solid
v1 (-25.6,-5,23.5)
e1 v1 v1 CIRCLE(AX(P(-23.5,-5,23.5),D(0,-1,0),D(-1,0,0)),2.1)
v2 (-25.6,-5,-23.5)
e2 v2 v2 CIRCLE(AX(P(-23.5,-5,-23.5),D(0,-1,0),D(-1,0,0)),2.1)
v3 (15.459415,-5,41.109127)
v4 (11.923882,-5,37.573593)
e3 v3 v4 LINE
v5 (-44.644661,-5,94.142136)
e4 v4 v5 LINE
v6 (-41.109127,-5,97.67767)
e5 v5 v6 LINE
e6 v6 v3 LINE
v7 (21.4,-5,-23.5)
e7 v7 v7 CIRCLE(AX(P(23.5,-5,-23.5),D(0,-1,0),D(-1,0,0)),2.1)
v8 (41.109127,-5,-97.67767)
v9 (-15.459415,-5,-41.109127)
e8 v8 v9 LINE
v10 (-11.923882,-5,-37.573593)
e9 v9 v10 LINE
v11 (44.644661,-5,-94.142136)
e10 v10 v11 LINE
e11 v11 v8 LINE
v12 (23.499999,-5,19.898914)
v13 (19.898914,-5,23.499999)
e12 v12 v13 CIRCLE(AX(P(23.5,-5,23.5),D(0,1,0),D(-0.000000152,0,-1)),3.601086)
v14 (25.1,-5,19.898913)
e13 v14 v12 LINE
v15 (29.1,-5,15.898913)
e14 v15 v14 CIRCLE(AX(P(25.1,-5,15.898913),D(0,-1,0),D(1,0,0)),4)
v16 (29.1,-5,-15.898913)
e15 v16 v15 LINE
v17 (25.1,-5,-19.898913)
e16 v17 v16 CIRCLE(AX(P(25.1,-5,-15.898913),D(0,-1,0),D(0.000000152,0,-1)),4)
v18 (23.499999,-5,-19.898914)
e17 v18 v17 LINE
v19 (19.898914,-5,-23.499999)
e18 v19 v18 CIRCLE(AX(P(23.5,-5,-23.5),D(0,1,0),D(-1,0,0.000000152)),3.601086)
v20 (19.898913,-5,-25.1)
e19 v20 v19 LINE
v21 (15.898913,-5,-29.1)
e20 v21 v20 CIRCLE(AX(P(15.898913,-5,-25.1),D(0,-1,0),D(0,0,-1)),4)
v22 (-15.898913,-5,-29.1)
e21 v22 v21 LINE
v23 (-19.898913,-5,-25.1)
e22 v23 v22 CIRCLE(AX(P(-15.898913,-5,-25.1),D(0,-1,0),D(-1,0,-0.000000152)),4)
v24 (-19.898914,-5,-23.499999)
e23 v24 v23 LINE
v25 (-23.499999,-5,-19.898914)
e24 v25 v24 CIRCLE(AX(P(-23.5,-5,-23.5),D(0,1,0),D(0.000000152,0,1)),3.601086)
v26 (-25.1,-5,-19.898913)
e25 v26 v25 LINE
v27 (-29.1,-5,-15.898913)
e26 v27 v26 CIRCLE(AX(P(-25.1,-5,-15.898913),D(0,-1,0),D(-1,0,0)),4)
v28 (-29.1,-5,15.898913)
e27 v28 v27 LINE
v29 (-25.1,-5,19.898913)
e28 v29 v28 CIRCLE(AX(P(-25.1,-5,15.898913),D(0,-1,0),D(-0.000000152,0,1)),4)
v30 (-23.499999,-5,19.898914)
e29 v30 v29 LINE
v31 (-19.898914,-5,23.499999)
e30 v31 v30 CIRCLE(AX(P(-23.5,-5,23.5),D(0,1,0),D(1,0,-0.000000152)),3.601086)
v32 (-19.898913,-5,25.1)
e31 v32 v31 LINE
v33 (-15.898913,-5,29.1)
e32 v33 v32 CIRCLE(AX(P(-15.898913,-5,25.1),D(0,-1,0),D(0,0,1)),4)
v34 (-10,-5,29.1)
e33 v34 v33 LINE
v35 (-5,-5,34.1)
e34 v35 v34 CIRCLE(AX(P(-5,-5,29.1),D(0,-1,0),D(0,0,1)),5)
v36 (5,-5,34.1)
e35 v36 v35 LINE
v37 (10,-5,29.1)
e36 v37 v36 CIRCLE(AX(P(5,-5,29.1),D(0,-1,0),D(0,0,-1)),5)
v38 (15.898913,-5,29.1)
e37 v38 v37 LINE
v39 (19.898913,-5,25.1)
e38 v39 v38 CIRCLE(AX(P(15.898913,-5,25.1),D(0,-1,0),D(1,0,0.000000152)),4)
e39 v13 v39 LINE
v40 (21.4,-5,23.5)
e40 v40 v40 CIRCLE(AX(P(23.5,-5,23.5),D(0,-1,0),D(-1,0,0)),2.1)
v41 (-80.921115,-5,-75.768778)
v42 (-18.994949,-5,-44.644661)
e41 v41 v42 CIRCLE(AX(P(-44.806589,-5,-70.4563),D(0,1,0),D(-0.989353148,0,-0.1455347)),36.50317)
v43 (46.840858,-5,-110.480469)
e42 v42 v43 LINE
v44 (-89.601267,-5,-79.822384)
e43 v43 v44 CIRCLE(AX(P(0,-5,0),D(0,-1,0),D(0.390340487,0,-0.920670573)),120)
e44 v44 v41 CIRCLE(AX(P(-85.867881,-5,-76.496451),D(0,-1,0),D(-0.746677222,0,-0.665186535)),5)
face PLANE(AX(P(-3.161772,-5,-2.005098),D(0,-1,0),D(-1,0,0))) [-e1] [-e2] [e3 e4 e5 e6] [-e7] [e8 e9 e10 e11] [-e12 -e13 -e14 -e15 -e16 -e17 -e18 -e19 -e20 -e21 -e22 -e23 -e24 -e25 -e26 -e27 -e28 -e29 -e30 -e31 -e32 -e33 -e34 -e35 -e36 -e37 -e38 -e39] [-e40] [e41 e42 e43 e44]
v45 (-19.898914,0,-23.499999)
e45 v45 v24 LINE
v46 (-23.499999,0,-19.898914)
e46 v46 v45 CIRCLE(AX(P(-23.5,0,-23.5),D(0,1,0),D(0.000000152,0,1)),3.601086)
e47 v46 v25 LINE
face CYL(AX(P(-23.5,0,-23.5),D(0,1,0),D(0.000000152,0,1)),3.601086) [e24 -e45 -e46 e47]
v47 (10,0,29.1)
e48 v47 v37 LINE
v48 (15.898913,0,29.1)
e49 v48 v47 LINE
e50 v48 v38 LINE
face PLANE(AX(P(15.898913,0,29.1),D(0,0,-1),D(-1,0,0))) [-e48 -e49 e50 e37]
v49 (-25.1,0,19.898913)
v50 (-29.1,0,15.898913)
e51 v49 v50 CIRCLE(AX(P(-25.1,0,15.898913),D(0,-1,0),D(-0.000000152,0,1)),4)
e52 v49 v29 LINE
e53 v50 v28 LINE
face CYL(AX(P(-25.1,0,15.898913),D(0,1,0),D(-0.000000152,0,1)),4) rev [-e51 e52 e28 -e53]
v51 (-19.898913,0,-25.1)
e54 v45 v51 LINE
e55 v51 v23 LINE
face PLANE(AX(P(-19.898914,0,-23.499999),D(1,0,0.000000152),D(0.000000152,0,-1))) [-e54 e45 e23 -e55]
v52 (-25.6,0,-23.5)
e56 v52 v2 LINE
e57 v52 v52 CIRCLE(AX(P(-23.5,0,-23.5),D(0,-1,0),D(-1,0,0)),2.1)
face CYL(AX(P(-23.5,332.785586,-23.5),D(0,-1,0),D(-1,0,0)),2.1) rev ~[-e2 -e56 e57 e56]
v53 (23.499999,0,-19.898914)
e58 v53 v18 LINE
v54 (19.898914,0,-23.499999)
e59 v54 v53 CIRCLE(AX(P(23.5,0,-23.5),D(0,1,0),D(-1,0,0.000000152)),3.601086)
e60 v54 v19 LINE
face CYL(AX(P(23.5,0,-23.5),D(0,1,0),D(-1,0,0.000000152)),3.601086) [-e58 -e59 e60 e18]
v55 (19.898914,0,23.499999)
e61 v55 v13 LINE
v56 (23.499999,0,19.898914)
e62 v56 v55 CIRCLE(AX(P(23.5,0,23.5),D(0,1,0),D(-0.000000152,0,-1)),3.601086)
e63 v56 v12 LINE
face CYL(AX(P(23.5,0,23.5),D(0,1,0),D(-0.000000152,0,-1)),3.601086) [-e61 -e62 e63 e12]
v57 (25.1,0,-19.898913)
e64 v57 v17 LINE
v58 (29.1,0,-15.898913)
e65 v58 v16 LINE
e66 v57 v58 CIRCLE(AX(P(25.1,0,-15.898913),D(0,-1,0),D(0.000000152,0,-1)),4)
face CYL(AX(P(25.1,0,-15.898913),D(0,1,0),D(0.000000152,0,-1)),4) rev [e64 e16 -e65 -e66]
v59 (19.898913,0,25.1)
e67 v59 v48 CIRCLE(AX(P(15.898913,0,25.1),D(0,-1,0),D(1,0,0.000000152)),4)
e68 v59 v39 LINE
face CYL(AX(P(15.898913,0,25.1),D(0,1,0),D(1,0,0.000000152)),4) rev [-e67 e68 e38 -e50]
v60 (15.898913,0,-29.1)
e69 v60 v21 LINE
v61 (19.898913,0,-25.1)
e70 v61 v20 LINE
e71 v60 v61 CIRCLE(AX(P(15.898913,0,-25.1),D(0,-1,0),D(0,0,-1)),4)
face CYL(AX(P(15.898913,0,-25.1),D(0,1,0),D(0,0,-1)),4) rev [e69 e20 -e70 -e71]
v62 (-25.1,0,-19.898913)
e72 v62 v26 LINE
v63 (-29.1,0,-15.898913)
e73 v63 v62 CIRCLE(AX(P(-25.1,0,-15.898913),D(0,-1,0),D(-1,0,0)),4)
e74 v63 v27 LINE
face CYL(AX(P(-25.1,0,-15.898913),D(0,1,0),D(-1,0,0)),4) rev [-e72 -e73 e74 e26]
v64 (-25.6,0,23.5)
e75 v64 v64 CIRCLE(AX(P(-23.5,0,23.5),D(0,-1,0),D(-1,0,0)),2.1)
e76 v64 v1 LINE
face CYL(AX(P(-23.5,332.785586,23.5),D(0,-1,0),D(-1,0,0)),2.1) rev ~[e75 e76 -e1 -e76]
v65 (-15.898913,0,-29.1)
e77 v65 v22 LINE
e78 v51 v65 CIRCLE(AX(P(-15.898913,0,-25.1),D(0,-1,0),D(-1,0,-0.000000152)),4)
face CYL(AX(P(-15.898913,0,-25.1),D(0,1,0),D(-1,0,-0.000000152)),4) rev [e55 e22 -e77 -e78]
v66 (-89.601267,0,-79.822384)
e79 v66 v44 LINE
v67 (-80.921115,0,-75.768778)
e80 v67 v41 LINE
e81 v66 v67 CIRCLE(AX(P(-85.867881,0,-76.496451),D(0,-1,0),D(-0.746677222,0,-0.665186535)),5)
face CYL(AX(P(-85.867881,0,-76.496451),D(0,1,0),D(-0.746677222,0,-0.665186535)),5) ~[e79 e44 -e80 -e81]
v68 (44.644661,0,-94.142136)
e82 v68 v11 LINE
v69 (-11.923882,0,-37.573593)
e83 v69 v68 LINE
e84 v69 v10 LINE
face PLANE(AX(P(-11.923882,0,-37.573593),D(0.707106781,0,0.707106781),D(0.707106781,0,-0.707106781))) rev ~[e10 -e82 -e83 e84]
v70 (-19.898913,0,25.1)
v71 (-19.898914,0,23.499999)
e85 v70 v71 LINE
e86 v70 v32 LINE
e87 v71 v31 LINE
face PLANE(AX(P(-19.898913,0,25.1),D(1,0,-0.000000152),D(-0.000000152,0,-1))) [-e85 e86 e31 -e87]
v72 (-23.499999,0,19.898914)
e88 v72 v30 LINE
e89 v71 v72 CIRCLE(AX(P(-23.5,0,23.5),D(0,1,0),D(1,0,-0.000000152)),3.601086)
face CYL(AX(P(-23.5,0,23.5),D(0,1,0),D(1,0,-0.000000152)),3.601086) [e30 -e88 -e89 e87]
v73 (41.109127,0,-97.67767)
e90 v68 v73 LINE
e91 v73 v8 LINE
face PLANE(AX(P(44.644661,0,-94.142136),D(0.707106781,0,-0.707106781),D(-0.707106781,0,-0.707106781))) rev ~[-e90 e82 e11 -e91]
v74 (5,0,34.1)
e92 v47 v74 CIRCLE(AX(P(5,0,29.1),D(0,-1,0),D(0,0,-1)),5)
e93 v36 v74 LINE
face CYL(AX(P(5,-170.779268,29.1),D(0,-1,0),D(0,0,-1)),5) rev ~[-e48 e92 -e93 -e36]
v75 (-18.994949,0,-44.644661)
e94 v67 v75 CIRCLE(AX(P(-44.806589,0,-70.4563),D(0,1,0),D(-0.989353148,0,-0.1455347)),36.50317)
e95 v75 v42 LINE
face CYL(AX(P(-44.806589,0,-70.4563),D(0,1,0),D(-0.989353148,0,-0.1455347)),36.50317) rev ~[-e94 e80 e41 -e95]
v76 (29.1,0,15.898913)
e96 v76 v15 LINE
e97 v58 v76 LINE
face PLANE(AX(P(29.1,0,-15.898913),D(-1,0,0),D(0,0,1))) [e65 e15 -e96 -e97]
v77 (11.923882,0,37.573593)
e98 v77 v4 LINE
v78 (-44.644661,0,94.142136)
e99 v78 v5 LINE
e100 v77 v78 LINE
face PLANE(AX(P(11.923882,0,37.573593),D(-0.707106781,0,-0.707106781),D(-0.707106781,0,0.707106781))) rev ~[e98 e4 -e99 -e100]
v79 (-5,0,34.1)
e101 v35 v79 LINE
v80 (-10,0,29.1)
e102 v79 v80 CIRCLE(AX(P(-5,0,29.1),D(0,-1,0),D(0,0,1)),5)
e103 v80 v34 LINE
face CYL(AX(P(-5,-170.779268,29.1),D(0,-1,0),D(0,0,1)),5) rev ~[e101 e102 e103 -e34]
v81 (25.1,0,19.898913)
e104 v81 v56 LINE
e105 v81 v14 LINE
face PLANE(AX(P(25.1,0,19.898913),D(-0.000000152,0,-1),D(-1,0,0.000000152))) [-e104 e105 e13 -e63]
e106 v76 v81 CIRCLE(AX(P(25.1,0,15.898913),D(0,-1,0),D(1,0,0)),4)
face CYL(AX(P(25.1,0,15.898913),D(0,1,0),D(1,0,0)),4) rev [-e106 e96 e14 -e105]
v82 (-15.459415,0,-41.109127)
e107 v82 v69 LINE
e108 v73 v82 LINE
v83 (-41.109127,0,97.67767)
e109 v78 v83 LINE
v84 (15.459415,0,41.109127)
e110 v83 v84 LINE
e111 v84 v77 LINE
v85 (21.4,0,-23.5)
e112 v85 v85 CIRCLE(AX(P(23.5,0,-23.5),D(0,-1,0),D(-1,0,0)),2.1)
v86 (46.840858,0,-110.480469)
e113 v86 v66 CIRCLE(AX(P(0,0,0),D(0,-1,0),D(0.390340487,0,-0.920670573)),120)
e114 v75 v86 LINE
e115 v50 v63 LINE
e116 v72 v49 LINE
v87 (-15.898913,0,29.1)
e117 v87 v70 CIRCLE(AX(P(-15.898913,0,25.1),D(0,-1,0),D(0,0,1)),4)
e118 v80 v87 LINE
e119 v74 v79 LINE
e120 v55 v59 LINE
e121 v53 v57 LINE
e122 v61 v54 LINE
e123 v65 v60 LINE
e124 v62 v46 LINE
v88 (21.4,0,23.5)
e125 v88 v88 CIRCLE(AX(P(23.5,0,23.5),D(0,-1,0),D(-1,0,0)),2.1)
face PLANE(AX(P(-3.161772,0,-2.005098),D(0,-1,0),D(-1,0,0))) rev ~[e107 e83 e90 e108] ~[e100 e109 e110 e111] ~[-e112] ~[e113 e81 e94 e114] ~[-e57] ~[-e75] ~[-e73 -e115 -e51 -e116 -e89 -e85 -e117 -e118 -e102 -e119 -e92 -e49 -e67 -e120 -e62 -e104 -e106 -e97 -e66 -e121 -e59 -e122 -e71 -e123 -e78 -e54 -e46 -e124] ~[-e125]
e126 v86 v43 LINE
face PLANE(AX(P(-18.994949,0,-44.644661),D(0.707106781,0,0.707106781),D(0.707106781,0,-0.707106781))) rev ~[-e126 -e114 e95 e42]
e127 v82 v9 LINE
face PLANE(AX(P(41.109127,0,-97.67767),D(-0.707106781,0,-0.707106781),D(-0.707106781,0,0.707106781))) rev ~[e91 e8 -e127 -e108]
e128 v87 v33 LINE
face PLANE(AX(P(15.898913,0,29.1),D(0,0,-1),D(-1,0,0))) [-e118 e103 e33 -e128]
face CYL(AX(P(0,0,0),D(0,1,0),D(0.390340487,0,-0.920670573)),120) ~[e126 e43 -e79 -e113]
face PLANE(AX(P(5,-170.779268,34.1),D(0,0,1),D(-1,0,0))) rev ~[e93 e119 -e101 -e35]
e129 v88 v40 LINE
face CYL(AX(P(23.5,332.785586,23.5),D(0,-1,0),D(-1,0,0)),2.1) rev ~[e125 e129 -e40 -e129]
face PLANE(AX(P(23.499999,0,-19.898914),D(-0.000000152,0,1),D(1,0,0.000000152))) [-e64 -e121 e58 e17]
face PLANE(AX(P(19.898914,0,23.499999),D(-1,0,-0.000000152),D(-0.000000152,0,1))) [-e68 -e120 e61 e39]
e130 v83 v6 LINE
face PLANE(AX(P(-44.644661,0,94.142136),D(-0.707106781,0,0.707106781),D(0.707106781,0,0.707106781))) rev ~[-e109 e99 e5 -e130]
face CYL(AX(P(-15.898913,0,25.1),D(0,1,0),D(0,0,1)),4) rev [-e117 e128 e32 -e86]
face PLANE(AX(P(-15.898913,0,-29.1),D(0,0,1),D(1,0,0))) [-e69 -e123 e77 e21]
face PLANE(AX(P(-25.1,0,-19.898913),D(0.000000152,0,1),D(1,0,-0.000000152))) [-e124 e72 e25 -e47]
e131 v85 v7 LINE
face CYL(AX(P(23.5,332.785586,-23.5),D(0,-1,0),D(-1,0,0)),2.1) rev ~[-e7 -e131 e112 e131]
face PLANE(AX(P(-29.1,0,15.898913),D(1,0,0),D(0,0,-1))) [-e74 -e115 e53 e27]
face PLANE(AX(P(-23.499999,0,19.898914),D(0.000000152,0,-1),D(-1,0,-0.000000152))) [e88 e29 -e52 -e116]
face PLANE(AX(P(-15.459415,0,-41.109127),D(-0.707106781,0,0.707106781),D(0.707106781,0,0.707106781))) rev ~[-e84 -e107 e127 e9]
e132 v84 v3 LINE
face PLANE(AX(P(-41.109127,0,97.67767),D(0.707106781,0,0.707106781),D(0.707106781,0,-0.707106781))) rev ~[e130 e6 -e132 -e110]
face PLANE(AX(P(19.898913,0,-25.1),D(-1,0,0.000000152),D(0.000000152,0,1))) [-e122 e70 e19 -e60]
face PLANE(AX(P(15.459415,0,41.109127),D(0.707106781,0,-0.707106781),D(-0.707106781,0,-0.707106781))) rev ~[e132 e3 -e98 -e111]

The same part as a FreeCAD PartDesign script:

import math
import FreeCAD as App
import Part
import Sketcher
from FreeCAD import Vector
Q = App.Units.Quantity


def add_polygon(sketch, points):
    """Adds a closed chain of lines whose ends are joined by coincident constraints."""
    first, n = sketch.GeometryCount, len(points)
    for a, b in zip(points, points[1:] + points[:1]):
        sketch.addGeometry(Part.LineSegment(App.Vector(*a, 0), App.Vector(*b, 0)), False)
    for i in range(n):
        sketch.addConstraint(Sketcher.Constraint("Coincident", first + i, 2, first + (i + 1) % n, 1))

doc = App.newDocument("Part")
body = doc.addObject("PartDesign::Body", "Body")

sketch1 = body.newObject("Sketcher::SketchObject", "Sketch")
sketch1.AttachmentSupport = (doc.getObject("XZ_Plane"), [""])
sketch1.MapMode = "FlatFace"
sketch1.addGeometry(Part.LineSegment(Vector(46.8, -110.5, 0), Vector(-19, -44.6, 0)), False)
sketch1.addGeometry(Part.ArcOfCircle(Part.Circle(Vector(-44.8, -70.5, 0), Vector(0, 0, 1), 36.5), math.radians(45), math.radians(188)), False)
sketch1.addGeometry(Part.ArcOfCircle(Part.Circle(Vector(-85.9, -76.5, 0), Vector(0, 0, 1), 5), math.radians(-138), math.radians(8)), False)
sketch1.addGeometry(Part.ArcOfCircle(Part.Circle(Vector(0, 0, 0), Vector(0, 0, 1), 120), math.radians(-67), math.radians(222)), False)
add_polygon(sketch1, [(-44.6, 94.1), (11.9, 37.6), (15.5, 41.1), (-41.1, 97.7)])
sketch1.addGeometry(Part.LineSegment(Vector(-19.9, -23.5, 0), Vector(-19.9, -25.1, 0)), False)
sketch1.addGeometry(Part.ArcOfCircle(Part.Circle(Vector(-15.9, -25.1, 0), Vector(0, 0, 1), 4), math.radians(-180), math.radians(-90)), False)
sketch1.addGeometry(Part.LineSegment(Vector(-15.9, -29.1, 0), Vector(15.9, -29.1, 0)), False)
sketch1.addGeometry(Part.ArcOfCircle(Part.Circle(Vector(15.9, -25.1, 0), Vector(0, 0, 1), 4), math.radians(-90), math.radians(0)), False)
sketch1.addGeometry(Part.LineSegment(Vector(19.9, -25.1, 0), Vector(19.9, -23.5, 0)), False)
sketch1.addGeometry(Part.ArcOfCircle(Part.Circle(Vector(23.5, -23.5, 0), Vector(0, 0, 1), 3.6), math.radians(90), math.radians(180)), False)
sketch1.addGeometry(Part.LineSegment(Vector(23.5, -19.9, 0), Vector(25.1, -19.9, 0)), False)
sketch1.addGeometry(Part.ArcOfCircle(Part.Circle(Vector(25.1, -15.9, 0), Vector(0, 0, 1), 4), math.radians(-90), math.radians(0)), False)
sketch1.addGeometry(Part.LineSegment(Vector(29.1, -15.9, 0), Vector(29.1, 15.9, 0)), False)
sketch1.addGeometry(Part.ArcOfCircle(Part.Circle(Vector(25.1, 15.9, 0), Vector(0, 0, 1), 4), math.radians(0), math.radians(90)), False)
sketch1.addGeometry(Part.LineSegment(Vector(25.1, 19.9, 0), Vector(23.5, 19.9, 0)), False)
sketch1.addGeometry(Part.ArcOfCircle(Part.Circle(Vector(23.5, 23.5, 0), Vector(0, 0, 1), 3.6), math.radians(-180), math.radians(-90)), False)
sketch1.addGeometry(Part.LineSegment(Vector(19.9, 23.5, 0), Vector(19.9, 25.1, 0)), False)
sketch1.addGeometry(Part.ArcOfCircle(Part.Circle(Vector(15.9, 25.1, 0), Vector(0, 0, 1), 4), math.radians(0), math.radians(90)), False)
sketch1.addGeometry(Part.LineSegment(Vector(15.9, 29.1, 0), Vector(-15.9, 29.1, 0)), False)
sketch1.addGeometry(Part.ArcOfCircle(Part.Circle(Vector(-15.9, 25.1, 0), Vector(0, 0, 1), 4), math.radians(90), math.radians(180)), False)
sketch1.addGeometry(Part.LineSegment(Vector(-19.9, 25.1, 0), Vector(-19.9, 23.5, 0)), False)
sketch1.addGeometry(Part.ArcOfCircle(Part.Circle(Vector(-23.5, 23.5, 0), Vector(0, 0, 1), 3.6), math.radians(-90), math.radians(0)), False)
sketch1.addGeometry(Part.LineSegment(Vector(-23.5, 19.9, 0), Vector(-25.1, 19.9, 0)), False)
sketch1.addGeometry(Part.ArcOfCircle(Part.Circle(Vector(-25.1, 15.9, 0), Vector(0, 0, 1), 4), math.radians(90), math.radians(180)), False)
sketch1.addGeometry(Part.LineSegment(Vector(-29.1, 15.9, 0), Vector(-29.1, -15.9, 0)), False)
sketch1.addGeometry(Part.ArcOfCircle(Part.Circle(Vector(-25.1, -15.9, 0), Vector(0, 0, 1), 4), math.radians(180), math.radians(270)), False)
sketch1.addGeometry(Part.LineSegment(Vector(-25.1, -19.9, 0), Vector(-23.5, -19.9, 0)), False)
sketch1.addGeometry(Part.ArcOfCircle(Part.Circle(Vector(-23.5, -23.5, 0), Vector(0, 0, 1), 3.6), math.radians(0), math.radians(90)), False)
add_polygon(sketch1, [(-11.9, -37.6), (-15.5, -41.1), (41.1, -97.7), (44.6, -94.1)])
sketch1.addConstraint([
    Sketcher.Constraint("Tangent", 0, 2, 1, 1),
    Sketcher.Constraint("Tangent", 1, 2, 2, 2),
    Sketcher.Constraint("Tangent", 2, 1, 3, 2),
    Sketcher.Constraint("Coincident", 3, 1, 0, 1),
    Sketcher.Constraint("Tangent", 8, 2, 9, 1),
    Sketcher.Constraint("Tangent", 9, 2, 10, 1),
    Sketcher.Constraint("Tangent", 10, 2, 11, 1),
    Sketcher.Constraint("Tangent", 11, 2, 12, 1),
    Sketcher.Constraint("Tangent", 12, 2, 13, 2),
    Sketcher.Constraint("Tangent", 13, 1, 14, 1),
    Sketcher.Constraint("Tangent", 14, 2, 15, 1),
    Sketcher.Constraint("Tangent", 15, 2, 16, 1),
    Sketcher.Constraint("Tangent", 16, 2, 17, 1),
    Sketcher.Constraint("Tangent", 17, 2, 18, 1),
    Sketcher.Constraint("Tangent", 18, 2, 19, 2),
    Sketcher.Constraint("Tangent", 19, 1, 20, 1),
    Sketcher.Constraint("Tangent", 20, 2, 21, 1),
    Sketcher.Constraint("Tangent", 21, 2, 22, 1),
    Sketcher.Constraint("Tangent", 22, 2, 23, 1),
    Sketcher.Constraint("Tangent", 23, 2, 24, 1),
    Sketcher.Constraint("Tangent", 24, 2, 25, 2),
    Sketcher.Constraint("Tangent", 25, 1, 26, 1),
    Sketcher.Constraint("Tangent", 26, 2, 27, 1),
    Sketcher.Constraint("Tangent", 27, 2, 28, 1),
    Sketcher.Constraint("Tangent", 28, 2, 29, 1),
    Sketcher.Constraint("Tangent", 29, 2, 30, 1),
    Sketcher.Constraint("Tangent", 30, 2, 31, 2),
    Sketcher.Constraint("Tangent", 31, 1, 8, 1),
    Sketcher.Constraint("Vertical", 8),
    Sketcher.Constraint("Horizontal", 10),
    Sketcher.Constraint("Vertical", 12),
    Sketcher.Constraint("Horizontal", 14),
    Sketcher.Constraint("Vertical", 16),
    Sketcher.Constraint("Horizontal", 18),
    Sketcher.Constraint("Vertical", 20),
    Sketcher.Constraint("Horizontal", 22),
    Sketcher.Constraint("Vertical", 24),
    Sketcher.Constraint("Horizontal", 26),
    Sketcher.Constraint("Vertical", 28),
    Sketcher.Constraint("Horizontal", 30),
    Sketcher.Constraint("Coincident", 3, 3, -1, 1),
    Sketcher.Constraint("Equal", 9, 11),
    Sketcher.Constraint("Equal", 11, 15),
    Sketcher.Constraint("Equal", 15, 17),
    Sketcher.Constraint("Equal", 13, 19),
    Sketcher.Constraint("Equal", 17, 21),
    Sketcher.Constraint("Equal", 21, 23),
    Sketcher.Constraint("Equal", 19, 25),
    Sketcher.Constraint("Equal", 23, 27),
    Sketcher.Constraint("Equal", 27, 29),
    Sketcher.Constraint("Equal", 25, 31),
    Sketcher.Constraint("Symmetric", 9, 3, 21, 3, -1, 1),
    Sketcher.Constraint("Symmetric", 13, 3, 25, 3, -1, 1),
    Sketcher.Constraint("Symmetric", 17, 3, 29, 3, -1, 1),
    Sketcher.Constraint("Symmetric", 5, 2, 32, 2, -1, 1),
    Sketcher.Constraint("Symmetric", 6, 2, 33, 2, -1, 1),
    Sketcher.Constraint("Symmetric", 7, 2, 34, 2, -1, 1),
    Sketcher.Constraint("Symmetric", 4, 2, 35, 2, -1, 1),
    Sketcher.Constraint("Symmetric", 19, 3, 25, 3, -2),
    Sketcher.Constraint("Parallel", 0, 4),
    Sketcher.Constraint("Perpendicular", 4, 5),
    Sketcher.Constraint("Perpendicular", 5, 6),
    Sketcher.Constraint("Perpendicular", 6, 7),
    Sketcher.Constraint("Equal", 30, 8),
    Sketcher.Constraint("Equal", 22, 16),
    Sketcher.Constraint("Radius", 2, 5.0),
    Sketcher.Constraint("Radius", 3, 120.0),
    Sketcher.Constraint("Radius", 9, 4.0),
    Sketcher.Constraint("Angle", 0, Q("135 deg")),
    Sketcher.Constraint("Distance", 4, 80.0),
    Sketcher.Constraint("Distance", 5, 5.0),
    Sketcher.Constraint("DistanceX", 14, 1, 14, 2, 1.600001),
    Sketcher.Constraint("DistanceY", 13, 3, 19, 3, 47.0),
    Sketcher.Constraint("Radius", 1, 36.50317),
    Sketcher.Constraint("Radius", 13, 3.601086),
    Sketcher.Constraint("DistanceY", 1, 3, -1, 1, 70.4563),
    Sketcher.Constraint("DistanceX", 1, 3, 11, 3, 60.705502),
    Sketcher.Constraint("DistanceX", 31, 1, 32, 2, 4.439498),
    Sketcher.Constraint("DistanceY", 3, 1, 33, 2, 12.802799),
])
pad1 = body.newObject("PartDesign::Pad", "Pad")
pad1.Profile = sketch1
pad1.Length = 5

sketch2 = body.newObject("Sketcher::SketchObject", "Sketch001")
sketch2.AttachmentSupport = (doc.getObject("XZ_Plane"), [""])
sketch2.MapMode = "FlatFace"
sketch2.addGeometry([
    Part.LineSegment(Vector(5, 24, 0), Vector(-5, 24, 0)),
    Part.ArcOfCircle(Part.Circle(Vector(-5, 29, 0), Vector(0, 0, 1), 5), math.radians(90), math.radians(270)),
    Part.LineSegment(Vector(-5, 34, 0), Vector(5, 34, 0)),
    Part.ArcOfCircle(Part.Circle(Vector(5, 29, 0), Vector(0, 0, 1), 5), math.radians(-90), math.radians(90)),
], False)
sketch2.addConstraint([
    Sketcher.Constraint("Tangent", 0, 2, 1, 2),
    Sketcher.Constraint("Tangent", 1, 1, 2, 1),
    Sketcher.Constraint("Tangent", 2, 2, 3, 2),
    Sketcher.Constraint("Tangent", 3, 1, 0, 1),
    Sketcher.Constraint("Horizontal", 0),
    Sketcher.Constraint("Horizontal", 2),
    Sketcher.Constraint("Radius", 1, 5.0),
    Sketcher.Constraint("DistanceX", 0, 2, 0, 1, 10.0),
    Sketcher.Constraint("DistanceX", 1, 3, -1, 1, 5.0),
    Sketcher.Constraint("DistanceY", -1, 1, 1, 3, 29.1),
])
pocket1 = body.newObject("PartDesign::Pocket", "Pocket")
pocket1.Profile = sketch2
pocket1.Type = "ThroughAll"
pocket1.Midplane = True

sketch3 = body.newObject("Sketcher::SketchObject", "Sketch002")
sketch3.AttachmentSupport = (doc.getObject("XZ_Plane"), [""])
sketch3.MapMode = "FlatFace"
sketch3.addGeometry([
    Part.Circle(Vector(23.5, -23.5, 0), Vector(0, 0, 1), 2.1),
    Part.Circle(Vector(23.5, 23.5, 0), Vector(0, 0, 1), 2.1),
    Part.Circle(Vector(-23.5, 23.5, 0), Vector(0, 0, 1), 2.1),
    Part.Circle(Vector(-23.5, -23.5, 0), Vector(0, 0, 1), 2.1),
], False)
sketch3.addConstraint([
    Sketcher.Constraint("Equal", 0, 1),
    Sketcher.Constraint("Equal", 1, 2),
    Sketcher.Constraint("Equal", 2, 3),
    Sketcher.Constraint("Symmetric", 0, 3, 2, 3, -1, 1),
    Sketcher.Constraint("Symmetric", 1, 3, 3, 3, -1, 1),
    Sketcher.Constraint("Symmetric", 1, 3, 2, 3, -2),
    Sketcher.Constraint("Diameter", 0, 4.2),
    Sketcher.Constraint("DistanceY", 0, 3, 1, 3, 47.0),
    Sketcher.Constraint("DistanceX", 2, 3, 1, 3, 47.0),
])
doc.recompute()
hole = body.newObject("PartDesign::Hole", "Hole")
hole.Profile = sketch3
hole.ThreadType = "None"
hole.Diameter = 4.2
hole.DepthType = "ThroughAll"
hole.Reversed = True

doc.recompute()
